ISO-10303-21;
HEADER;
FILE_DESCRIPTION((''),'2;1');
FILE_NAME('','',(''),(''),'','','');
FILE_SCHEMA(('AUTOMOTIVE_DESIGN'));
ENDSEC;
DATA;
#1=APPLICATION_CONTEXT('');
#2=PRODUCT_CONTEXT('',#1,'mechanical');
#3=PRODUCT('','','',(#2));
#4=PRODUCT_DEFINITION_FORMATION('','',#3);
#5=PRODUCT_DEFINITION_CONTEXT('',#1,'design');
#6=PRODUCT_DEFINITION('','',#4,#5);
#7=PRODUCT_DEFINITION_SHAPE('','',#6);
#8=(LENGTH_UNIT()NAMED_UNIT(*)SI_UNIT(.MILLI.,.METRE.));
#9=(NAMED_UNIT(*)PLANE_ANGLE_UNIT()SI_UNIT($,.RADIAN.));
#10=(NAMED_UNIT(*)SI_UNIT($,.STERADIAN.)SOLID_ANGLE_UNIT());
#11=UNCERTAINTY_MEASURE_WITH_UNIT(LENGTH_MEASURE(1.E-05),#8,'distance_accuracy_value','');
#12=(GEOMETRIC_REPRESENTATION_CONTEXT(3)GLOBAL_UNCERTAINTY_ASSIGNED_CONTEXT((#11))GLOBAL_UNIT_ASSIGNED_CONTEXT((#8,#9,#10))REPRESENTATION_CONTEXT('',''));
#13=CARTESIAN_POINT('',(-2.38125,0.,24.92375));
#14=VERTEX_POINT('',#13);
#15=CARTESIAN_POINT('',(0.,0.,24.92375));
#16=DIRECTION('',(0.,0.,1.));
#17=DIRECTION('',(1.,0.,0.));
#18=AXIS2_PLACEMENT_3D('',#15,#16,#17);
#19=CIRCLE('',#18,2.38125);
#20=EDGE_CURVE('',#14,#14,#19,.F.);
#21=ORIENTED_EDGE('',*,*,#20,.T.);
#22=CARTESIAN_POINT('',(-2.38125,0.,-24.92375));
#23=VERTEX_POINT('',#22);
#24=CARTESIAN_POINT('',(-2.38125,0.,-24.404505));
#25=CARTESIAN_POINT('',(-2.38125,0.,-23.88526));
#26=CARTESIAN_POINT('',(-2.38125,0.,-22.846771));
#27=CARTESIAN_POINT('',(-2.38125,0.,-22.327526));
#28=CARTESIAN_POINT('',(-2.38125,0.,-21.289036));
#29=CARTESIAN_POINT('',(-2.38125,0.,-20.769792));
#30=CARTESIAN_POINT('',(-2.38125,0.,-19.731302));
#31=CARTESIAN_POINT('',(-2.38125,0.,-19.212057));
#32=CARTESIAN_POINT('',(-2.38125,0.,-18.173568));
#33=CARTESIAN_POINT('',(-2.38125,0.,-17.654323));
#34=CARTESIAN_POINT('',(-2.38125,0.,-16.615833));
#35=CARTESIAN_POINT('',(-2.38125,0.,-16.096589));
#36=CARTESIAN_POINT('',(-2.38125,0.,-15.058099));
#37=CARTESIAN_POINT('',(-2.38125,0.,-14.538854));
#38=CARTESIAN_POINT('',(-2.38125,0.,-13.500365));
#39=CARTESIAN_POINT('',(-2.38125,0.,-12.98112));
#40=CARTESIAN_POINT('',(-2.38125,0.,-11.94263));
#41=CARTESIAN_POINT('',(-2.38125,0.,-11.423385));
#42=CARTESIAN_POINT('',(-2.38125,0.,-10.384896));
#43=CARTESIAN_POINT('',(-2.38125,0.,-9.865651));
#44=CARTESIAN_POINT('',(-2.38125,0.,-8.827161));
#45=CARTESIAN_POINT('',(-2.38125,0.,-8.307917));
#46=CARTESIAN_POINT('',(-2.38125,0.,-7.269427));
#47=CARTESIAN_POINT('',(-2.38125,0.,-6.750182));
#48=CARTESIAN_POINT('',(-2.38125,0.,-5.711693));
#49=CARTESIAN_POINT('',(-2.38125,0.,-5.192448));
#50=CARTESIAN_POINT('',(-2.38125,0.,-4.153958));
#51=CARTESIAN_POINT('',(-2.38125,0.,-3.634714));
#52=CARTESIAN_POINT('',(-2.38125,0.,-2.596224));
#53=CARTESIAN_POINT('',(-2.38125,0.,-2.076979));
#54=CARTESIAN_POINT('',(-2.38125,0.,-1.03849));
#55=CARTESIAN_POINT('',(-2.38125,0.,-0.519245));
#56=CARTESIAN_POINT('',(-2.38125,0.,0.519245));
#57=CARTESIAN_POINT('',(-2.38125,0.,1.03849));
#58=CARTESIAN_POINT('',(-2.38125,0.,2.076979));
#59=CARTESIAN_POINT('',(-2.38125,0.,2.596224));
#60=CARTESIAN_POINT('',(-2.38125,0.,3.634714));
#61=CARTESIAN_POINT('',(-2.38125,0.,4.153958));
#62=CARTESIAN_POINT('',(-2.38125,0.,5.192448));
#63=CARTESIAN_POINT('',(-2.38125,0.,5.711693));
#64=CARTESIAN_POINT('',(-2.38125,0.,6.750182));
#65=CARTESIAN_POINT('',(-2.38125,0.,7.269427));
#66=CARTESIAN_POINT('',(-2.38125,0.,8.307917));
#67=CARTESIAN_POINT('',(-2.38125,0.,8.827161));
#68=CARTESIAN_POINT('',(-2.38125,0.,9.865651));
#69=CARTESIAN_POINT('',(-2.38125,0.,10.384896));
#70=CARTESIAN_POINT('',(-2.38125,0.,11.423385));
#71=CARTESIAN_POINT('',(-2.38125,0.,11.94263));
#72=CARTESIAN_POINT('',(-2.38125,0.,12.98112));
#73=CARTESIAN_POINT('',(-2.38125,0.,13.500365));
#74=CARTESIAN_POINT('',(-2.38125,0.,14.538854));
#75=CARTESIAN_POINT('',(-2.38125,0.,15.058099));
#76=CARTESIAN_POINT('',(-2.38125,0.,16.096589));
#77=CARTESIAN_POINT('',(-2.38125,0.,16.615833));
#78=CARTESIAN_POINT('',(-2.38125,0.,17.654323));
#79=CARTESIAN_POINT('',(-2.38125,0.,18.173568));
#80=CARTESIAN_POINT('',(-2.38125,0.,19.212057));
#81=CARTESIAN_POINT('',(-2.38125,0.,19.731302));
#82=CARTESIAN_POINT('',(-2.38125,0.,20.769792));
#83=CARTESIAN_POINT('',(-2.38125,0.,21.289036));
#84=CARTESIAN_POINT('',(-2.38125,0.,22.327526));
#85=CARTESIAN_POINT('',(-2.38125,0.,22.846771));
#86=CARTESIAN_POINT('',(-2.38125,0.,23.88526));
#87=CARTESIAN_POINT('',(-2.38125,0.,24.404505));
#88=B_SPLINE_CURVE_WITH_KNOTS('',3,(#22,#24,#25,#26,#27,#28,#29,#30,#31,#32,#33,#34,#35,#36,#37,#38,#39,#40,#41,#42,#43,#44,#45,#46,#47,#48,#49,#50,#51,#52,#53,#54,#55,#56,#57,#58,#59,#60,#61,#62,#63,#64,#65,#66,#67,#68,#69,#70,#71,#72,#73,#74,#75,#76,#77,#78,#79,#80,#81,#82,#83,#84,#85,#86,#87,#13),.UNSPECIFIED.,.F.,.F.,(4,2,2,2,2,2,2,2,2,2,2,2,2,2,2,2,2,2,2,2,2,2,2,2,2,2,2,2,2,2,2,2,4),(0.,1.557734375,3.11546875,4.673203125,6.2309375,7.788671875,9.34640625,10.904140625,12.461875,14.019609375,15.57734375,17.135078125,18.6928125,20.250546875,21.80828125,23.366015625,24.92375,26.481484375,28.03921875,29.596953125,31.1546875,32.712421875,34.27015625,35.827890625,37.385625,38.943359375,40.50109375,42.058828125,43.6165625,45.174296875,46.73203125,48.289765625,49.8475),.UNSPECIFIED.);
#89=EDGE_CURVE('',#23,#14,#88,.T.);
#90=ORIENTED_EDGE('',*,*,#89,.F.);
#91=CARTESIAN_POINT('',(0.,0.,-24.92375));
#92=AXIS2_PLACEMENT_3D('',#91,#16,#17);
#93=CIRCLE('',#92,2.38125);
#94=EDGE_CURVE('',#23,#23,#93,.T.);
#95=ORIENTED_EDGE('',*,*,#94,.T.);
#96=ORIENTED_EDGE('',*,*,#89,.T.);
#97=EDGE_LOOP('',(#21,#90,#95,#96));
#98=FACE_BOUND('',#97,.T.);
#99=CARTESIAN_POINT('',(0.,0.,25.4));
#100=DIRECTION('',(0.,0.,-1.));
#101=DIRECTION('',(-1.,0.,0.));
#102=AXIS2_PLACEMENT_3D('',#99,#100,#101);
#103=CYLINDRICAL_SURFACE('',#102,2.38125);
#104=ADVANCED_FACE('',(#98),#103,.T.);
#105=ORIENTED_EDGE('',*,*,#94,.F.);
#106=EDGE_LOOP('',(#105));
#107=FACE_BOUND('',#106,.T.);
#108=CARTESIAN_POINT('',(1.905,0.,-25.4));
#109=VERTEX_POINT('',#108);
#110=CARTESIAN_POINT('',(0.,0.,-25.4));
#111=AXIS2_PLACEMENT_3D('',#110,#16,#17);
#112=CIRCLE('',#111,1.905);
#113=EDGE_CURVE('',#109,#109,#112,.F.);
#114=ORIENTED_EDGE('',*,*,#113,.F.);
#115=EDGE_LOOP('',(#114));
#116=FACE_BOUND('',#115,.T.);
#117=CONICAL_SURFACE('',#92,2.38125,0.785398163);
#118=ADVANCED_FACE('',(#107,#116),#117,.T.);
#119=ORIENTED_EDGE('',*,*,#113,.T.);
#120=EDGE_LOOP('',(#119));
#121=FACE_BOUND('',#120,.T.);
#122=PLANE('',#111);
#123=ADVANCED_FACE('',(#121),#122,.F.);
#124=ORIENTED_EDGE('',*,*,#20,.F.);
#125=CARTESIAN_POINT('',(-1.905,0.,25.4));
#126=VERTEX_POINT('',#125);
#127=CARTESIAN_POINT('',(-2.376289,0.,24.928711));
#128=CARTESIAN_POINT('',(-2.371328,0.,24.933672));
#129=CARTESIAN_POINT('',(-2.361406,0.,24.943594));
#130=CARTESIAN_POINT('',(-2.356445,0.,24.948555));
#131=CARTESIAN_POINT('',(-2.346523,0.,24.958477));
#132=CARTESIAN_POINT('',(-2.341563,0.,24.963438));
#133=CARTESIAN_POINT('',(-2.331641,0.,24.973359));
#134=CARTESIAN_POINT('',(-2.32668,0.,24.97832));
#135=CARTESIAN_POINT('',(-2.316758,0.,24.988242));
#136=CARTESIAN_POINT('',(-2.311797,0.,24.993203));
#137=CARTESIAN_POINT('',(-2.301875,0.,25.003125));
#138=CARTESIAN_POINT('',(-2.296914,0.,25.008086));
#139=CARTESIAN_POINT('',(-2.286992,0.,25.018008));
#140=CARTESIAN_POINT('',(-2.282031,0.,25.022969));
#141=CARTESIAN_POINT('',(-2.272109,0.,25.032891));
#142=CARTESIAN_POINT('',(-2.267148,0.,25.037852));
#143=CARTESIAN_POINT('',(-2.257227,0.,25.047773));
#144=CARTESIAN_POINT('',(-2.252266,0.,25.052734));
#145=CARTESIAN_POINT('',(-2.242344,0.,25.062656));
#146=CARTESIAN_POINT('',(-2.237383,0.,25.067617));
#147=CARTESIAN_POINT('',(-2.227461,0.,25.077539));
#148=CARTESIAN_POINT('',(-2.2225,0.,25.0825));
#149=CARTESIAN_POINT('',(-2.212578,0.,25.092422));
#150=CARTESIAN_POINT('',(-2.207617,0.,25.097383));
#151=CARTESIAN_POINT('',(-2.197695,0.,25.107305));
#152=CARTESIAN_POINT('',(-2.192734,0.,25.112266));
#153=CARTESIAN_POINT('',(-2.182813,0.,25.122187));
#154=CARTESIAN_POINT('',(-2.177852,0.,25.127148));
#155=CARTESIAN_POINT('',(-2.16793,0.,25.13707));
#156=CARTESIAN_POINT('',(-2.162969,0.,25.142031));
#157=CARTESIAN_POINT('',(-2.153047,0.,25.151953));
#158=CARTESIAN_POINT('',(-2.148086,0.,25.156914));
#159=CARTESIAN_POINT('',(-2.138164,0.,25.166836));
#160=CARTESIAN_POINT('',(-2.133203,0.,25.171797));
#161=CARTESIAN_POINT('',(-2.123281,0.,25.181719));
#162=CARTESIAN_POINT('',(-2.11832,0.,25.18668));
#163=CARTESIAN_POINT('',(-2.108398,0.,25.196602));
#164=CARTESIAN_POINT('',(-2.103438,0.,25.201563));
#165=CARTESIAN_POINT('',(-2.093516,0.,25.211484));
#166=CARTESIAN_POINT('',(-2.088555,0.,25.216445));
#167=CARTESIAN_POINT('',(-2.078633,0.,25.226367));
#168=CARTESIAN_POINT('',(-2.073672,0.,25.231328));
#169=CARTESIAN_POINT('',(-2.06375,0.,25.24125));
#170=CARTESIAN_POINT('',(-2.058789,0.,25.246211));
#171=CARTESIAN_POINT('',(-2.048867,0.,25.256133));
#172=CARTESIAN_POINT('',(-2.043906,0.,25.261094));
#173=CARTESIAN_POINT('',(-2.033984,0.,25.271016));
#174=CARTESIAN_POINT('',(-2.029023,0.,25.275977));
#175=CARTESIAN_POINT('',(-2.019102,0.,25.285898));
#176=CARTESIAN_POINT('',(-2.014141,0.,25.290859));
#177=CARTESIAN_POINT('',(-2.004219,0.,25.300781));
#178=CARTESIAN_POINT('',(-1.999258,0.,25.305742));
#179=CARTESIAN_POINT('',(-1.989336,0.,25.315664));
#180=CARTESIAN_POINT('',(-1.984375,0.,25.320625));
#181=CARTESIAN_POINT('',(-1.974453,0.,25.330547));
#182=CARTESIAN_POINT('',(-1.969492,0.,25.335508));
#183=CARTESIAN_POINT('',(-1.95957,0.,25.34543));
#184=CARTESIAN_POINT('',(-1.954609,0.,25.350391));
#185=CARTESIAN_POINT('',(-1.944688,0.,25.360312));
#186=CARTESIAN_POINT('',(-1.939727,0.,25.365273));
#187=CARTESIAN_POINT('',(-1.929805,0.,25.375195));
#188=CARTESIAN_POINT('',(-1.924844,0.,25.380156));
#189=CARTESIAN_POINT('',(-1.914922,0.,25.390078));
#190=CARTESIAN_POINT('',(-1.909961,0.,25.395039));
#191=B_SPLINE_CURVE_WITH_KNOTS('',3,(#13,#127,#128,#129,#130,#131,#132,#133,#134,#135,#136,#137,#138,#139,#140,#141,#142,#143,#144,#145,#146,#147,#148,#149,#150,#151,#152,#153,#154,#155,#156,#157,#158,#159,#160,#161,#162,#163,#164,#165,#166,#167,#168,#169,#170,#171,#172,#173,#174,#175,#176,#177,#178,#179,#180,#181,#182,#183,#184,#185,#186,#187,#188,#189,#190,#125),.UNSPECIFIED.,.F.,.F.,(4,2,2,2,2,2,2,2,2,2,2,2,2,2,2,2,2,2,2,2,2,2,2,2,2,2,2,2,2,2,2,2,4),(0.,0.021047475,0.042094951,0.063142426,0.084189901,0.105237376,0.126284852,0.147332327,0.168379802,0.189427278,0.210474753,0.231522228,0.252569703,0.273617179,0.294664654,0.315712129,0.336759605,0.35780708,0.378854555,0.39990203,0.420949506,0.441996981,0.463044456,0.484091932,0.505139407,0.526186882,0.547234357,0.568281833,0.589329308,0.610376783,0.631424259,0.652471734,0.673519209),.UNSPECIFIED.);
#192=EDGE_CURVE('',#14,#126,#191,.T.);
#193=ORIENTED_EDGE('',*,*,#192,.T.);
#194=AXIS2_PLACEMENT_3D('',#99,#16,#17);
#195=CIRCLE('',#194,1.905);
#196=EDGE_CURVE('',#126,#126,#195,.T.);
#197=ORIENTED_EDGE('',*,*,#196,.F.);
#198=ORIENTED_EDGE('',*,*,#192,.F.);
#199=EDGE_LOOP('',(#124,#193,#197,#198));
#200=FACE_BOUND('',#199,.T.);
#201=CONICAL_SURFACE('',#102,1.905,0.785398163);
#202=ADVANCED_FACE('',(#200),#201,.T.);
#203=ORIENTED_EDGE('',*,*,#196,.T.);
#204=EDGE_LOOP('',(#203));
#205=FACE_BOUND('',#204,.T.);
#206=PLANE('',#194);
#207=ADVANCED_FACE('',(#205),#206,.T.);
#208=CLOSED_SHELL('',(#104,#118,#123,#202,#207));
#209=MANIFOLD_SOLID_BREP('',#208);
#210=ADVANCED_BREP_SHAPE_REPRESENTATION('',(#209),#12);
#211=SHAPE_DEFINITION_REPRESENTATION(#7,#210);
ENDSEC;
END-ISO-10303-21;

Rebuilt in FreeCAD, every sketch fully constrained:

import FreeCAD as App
import Part
import Sketcher
Q = App.Units.Quantity


def edges_at(feature, points):
    """Names of the edges that pass closest to the given points."""
    edges = feature.Shape.Edges
    near = lambda p: min(range(len(edges)), key=lambda i: edges[i].distToShape(Part.Vertex(*p))[0])
    return sorted({f"Edge{near(p) + 1}" for p in points})

doc = App.newDocument("Part")
body = doc.addObject("PartDesign::Body", "Body")

sketch1 = body.newObject("Sketcher::SketchObject", "Sketch")
sketch1.AttachmentSupport = (doc.getObject("XY_Plane"), [""])
sketch1.MapMode = "FlatFace"
sketch1.addGeometry(Part.Circle(App.Vector(0, 0, 0), App.Vector(0, 0, 1), 2.4), False)
sketch1.addConstraint(Sketcher.Constraint("Coincident", 0, 3, -1, 1))
sketch1.addConstraint(Sketcher.Constraint("Diameter", 0, Q("0.1875 in")))
pad1 = body.newObject("PartDesign::Pad", "Pad")
pad1.Profile = sketch1
pad1.Type = "TwoLengths"
pad1.Length = Q("1 in")
pad1.Length2 = Q("1 in")
doc.recompute()

chamfer = body.newObject("PartDesign::Chamfer", "Chamfer")
chamfer.Base = (pad1, edges_at(pad1, [(-2.381, 0, -25.4), (-2.381, 0, 25.4)]))
chamfer.Size = 0.47625

doc.recompute()
